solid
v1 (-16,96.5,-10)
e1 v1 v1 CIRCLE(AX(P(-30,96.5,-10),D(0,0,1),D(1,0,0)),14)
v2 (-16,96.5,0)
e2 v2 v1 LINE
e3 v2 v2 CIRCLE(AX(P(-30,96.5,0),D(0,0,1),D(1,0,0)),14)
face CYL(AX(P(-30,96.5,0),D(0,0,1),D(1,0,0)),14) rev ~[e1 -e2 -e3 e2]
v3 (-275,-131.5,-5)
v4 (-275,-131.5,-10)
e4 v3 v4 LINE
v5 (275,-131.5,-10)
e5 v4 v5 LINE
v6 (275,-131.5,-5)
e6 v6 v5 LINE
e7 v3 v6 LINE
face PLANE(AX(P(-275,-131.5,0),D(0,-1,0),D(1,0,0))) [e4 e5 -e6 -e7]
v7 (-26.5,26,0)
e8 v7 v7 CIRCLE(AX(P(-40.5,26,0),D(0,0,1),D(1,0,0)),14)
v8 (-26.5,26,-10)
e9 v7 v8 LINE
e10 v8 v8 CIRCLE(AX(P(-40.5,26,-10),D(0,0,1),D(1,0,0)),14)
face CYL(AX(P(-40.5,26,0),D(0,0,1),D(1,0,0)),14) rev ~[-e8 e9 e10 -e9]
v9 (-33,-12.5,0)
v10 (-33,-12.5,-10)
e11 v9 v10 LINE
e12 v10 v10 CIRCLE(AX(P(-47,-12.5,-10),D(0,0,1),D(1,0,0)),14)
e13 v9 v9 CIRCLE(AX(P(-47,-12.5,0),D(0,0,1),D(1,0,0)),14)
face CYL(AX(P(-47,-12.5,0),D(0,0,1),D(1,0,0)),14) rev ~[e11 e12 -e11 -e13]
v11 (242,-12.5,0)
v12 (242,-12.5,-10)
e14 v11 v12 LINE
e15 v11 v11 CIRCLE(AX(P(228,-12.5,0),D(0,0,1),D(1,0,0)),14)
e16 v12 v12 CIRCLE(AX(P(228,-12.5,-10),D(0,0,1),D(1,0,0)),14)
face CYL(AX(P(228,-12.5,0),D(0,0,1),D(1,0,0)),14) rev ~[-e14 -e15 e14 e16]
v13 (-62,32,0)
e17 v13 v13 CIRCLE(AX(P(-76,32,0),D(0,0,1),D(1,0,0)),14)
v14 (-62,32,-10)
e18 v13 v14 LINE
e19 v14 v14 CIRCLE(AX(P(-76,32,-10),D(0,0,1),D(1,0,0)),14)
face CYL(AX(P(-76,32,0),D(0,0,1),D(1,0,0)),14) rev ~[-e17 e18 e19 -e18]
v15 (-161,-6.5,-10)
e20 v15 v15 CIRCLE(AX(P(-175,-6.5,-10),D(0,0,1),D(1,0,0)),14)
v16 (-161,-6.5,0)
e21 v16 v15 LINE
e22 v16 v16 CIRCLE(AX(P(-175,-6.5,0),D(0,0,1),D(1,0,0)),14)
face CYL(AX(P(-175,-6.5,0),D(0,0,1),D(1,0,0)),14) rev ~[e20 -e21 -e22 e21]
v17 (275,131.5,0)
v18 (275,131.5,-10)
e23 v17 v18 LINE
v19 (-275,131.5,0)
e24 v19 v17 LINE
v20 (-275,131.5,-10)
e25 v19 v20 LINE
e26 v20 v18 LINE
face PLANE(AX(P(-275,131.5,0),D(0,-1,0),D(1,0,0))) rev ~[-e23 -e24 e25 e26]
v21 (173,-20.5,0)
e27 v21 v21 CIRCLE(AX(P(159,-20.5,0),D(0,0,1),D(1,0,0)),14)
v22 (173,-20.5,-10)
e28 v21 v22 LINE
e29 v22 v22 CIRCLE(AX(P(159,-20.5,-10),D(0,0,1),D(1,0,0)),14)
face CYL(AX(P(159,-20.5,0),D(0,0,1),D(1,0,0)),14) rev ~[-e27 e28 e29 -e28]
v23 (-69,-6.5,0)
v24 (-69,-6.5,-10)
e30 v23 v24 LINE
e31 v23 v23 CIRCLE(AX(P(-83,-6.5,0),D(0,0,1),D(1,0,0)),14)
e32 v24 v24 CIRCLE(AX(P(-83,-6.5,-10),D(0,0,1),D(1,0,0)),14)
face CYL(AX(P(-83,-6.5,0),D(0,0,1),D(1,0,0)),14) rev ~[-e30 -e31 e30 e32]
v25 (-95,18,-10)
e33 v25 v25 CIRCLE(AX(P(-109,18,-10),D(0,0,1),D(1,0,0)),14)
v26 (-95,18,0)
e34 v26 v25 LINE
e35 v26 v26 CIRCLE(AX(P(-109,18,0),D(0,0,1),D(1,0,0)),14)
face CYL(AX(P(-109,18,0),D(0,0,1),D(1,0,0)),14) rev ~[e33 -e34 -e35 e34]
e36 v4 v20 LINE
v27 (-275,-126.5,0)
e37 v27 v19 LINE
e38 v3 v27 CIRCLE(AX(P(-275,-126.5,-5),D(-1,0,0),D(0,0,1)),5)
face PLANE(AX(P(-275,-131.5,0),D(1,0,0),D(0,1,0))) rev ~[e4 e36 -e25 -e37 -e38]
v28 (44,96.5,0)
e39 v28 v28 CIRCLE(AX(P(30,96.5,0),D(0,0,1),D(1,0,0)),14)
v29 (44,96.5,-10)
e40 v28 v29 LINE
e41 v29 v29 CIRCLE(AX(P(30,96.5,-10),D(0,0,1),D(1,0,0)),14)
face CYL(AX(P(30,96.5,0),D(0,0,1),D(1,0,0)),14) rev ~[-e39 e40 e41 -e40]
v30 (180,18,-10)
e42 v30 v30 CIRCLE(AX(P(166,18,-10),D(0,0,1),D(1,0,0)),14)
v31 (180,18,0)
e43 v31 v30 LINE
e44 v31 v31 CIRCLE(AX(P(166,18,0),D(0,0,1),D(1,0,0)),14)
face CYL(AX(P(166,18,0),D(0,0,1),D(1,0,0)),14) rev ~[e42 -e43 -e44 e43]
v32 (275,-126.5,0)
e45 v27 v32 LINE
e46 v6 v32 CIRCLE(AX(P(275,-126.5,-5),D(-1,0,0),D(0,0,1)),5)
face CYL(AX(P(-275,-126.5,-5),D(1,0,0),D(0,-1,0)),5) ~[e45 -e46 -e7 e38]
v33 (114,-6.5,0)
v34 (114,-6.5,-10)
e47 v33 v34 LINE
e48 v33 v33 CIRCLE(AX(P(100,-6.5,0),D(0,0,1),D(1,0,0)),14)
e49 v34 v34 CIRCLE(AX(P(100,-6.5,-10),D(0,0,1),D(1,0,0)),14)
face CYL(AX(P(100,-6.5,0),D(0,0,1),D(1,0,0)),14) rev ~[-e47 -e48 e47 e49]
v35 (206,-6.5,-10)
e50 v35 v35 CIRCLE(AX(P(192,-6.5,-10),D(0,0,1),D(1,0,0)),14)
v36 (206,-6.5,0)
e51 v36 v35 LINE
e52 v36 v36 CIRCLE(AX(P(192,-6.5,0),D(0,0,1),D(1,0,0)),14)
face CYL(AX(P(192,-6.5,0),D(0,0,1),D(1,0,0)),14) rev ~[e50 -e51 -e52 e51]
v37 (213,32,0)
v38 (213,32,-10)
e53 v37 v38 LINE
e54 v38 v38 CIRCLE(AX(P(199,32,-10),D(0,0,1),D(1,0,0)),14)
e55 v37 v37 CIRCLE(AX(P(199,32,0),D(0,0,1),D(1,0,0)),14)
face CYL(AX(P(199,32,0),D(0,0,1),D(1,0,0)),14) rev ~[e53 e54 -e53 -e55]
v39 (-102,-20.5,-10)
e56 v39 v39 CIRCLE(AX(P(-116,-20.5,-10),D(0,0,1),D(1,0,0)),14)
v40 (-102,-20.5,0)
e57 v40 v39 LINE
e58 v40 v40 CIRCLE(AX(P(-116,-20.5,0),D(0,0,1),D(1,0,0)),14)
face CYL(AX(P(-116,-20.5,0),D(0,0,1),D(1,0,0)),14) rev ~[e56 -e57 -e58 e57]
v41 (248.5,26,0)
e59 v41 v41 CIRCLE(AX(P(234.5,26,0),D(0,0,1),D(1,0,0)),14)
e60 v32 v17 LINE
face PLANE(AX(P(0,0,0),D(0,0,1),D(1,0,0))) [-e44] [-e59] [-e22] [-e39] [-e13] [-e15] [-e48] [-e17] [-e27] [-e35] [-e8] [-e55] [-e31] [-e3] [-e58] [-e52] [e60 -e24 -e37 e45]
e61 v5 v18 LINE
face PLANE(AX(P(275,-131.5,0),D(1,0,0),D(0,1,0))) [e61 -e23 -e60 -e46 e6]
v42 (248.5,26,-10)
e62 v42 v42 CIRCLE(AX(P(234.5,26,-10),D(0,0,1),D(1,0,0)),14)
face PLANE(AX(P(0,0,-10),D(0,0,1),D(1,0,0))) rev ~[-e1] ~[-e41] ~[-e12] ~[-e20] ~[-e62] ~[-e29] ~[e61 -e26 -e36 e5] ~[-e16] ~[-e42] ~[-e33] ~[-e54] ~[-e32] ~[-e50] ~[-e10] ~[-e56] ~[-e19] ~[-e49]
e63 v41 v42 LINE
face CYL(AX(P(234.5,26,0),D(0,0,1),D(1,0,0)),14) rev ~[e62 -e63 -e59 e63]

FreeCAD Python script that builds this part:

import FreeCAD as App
import Part
import Sketcher


def edges_at(feature, points):
    """Names of the edges that pass closest to the given points."""
    edges = feature.Shape.Edges
    near = lambda p: min(range(len(edges)), key=lambda i: edges[i].distToShape(Part.Vertex(*p))[0])
    return sorted({f"Edge{near(p) + 1}" for p in points})


def add_polygon(sketch, points):
    """Adds a closed chain of lines whose ends are joined by coincident constraints."""
    first, n = sketch.GeometryCount, len(points)
    for a, b in zip(points, points[1:] + points[:1]):
        sketch.addGeometry(Part.LineSegment(App.Vector(*a, 0), App.Vector(*b, 0)), False)
    for i in range(n):
        sketch.addConstraint(Sketcher.Constraint("Coincident", first + i, 2, first + (i + 1) % n, 1))

doc = App.newDocument("Part")
body = doc.addObject("PartDesign::Body", "Body")

# Sketch on XY plane
sketch1 = body.newObject("Sketcher::SketchObject", "Sketch")
sketch1.AttachmentSupport = (doc.getObject("XY_Plane"), [""])
sketch1.MapMode = "FlatFace"
add_polygon(sketch1, [(-275, 131.5), (-275, -131.5), (275, -131.5), (275, 131.5)])  # lines 0-3
sketch1.addGeometry(Part.Circle(App.Vector(-116, -20.5, 0), App.Vector(0, 0, 1), 14), False)  # 4
sketch1.addGeometry(Part.Circle(App.Vector(-175, -6.5, 0), App.Vector(0, 0, 1), 14), False)  # 5
sketch1.addGeometry(Part.Circle(App.Vector(-83, -6.5, 0), App.Vector(0, 0, 1), 14), False)  # 6
sketch1.addGeometry(Part.Circle(App.Vector(-47, -12.5, 0), App.Vector(0, 0, 1), 14), False)  # 7
sketch1.addGeometry(Part.Circle(App.Vector(-109, 18, 0), App.Vector(0, 0, 1), 14), False)  # 8
sketch1.addGeometry(Part.Circle(App.Vector(-40.5, 26, 0), App.Vector(0, 0, 1), 14), False)  # 9
sketch1.addGeometry(Part.Circle(App.Vector(-76, 32, 0), App.Vector(0, 0, 1), 14), False)  # 10
sketch1.addGeometry(Part.Circle(App.Vector(100, -6.5, 0), App.Vector(0, 0, 1), 14), False)  # 11
sketch1.addGeometry(Part.Circle(App.Vector(159, -20.5, 0), App.Vector(0, 0, 1), 14), False)  # 12
sketch1.addGeometry(Part.Circle(App.Vector(192, -6.5, 0), App.Vector(0, 0, 1), 14), False)  # 13
sketch1.addGeometry(Part.Circle(App.Vector(228, -12.5, 0), App.Vector(0, 0, 1), 14), False)  # 14
sketch1.addGeometry(Part.Circle(App.Vector(166, 18, 0), App.Vector(0, 0, 1), 14), False)  # 15
sketch1.addGeometry(Part.Circle(App.Vector(234.5, 26, 0), App.Vector(0, 0, 1), 14), False)  # 16
sketch1.addGeometry(Part.Circle(App.Vector(199, 32, 0), App.Vector(0, 0, 1), 14), False)  # 17
sketch1.addGeometry(Part.Circle(App.Vector(-30, 96.5, 0), App.Vector(0, 0, 1), 14), False)  # 18
sketch1.addGeometry(Part.Circle(App.Vector(30, 96.5, 0), App.Vector(0, 0, 1), 14), False)  # 19
sketch1.addConstraint([
    Sketcher.Constraint("Vertical", 0),
    Sketcher.Constraint("Horizontal", 1),
    Sketcher.Constraint("Vertical", 2),
    Sketcher.Constraint("Horizontal", 3),
    Sketcher.Constraint("Equal", 4, 5),
    Sketcher.Constraint("Equal", 5, 6),
    Sketcher.Constraint("Equal", 6, 7),
    Sketcher.Constraint("Equal", 7, 8),
    Sketcher.Constraint("Equal", 8, 9),
    Sketcher.Constraint("Equal", 9, 10),
    Sketcher.Constraint("Equal", 10, 11),
    Sketcher.Constraint("Equal", 11, 12),
    Sketcher.Constraint("Equal", 12, 13),
    Sketcher.Constraint("Equal", 13, 14),
    Sketcher.Constraint("Equal", 14, 15),
    Sketcher.Constraint("Equal", 15, 16),
    Sketcher.Constraint("Equal", 16, 17),
    Sketcher.Constraint("Equal", 17, 18),
    Sketcher.Constraint("Equal", 18, 19),
    Sketcher.Constraint("Symmetric", 0, 2, 2, 2, -1, 1),
    Sketcher.Constraint("Symmetric", 18, 3, 19, 3, -2),
    Sketcher.Constraint("Horizontal", 5, 3, 6, 3),
    Sketcher.Constraint("Horizontal", 6, 3, 11, 3),
    Sketcher.Constraint("Horizontal", 4, 3, 12, 3),
    Sketcher.Constraint("Horizontal", 11, 3, 13, 3),
    Sketcher.Constraint("Horizontal", 7, 3, 14, 3),
    Sketcher.Constraint("Horizontal", 8, 3, 15, 3),
    Sketcher.Constraint("Horizontal", 9, 3, 16, 3),
    Sketcher.Constraint("Horizontal", 10, 3, 17, 3),
    Sketcher.Constraint("Diameter", 4, 28.0),
    Sketcher.Constraint("DistanceX", 1, 1, 1, 2, 550.0),
    Sketcher.Constraint("DistanceY", 0, 2, 0, 1, 263.0),
    Sketcher.Constraint("DistanceX", 4, 3, -1, 1, 116.0),
    Sketcher.Constraint("DistanceX", 5, 3, -1, 1, 175.0),
    Sketcher.Constraint("DistanceX", 6, 3, -1, 1, 83.0),
    Sketcher.Constraint("DistanceX", 7, 3, -1, 1, 47.0),
    Sketcher.Constraint("DistanceX", 8, 3, -1, 1, 109.0),
    Sketcher.Constraint("DistanceY", -1, 1, 8, 3, 18.0),
    Sketcher.Constraint("DistanceY", -1, 1, 9, 3, 26.0),
    Sketcher.Constraint("DistanceX", 10, 3, -1, 1, 76.0),
    Sketcher.Constraint("DistanceY", -1, 1, 10, 3, 32.0),
    Sketcher.Constraint("DistanceX", -1, 1, 11, 3, 100.0),
    Sketcher.Constraint("DistanceX", -1, 1, 12, 3, 159.0),
    Sketcher.Constraint("DistanceX", -1, 1, 13, 3, 192.0),
    Sketcher.Constraint("DistanceX", -1, 1, 14, 3, 228.0),
    Sketcher.Constraint("DistanceX", -1, 1, 15, 3, 166.0),
    Sketcher.Constraint("DistanceX", -1, 1, 17, 3, 199.0),
    Sketcher.Constraint("DistanceX", 18, 3, -1, 1, 30.0),
    Sketcher.Constraint("DistanceY", 4, 3, 5, 3, 14.0),
    Sketcher.Constraint("DistanceY", 7, 3, 6, 3, 6.0),
    Sketcher.Constraint("DistanceY", 7, 3, 18, 3, 109.0),
    Sketcher.Constraint("DistanceY", 0, 2, 5, 3, 125.0),
    Sketcher.Constraint("DistanceX", 9, 3, -1, 1, 40.5),
    Sketcher.Constraint("DistanceX", -1, 1, 16, 3, 234.5),
])
pad1 = body.newObject("PartDesign::Pad", "Pad")
pad1.Profile = sketch1
pad1.Length = 10
pad1.Reversed = True
doc.recompute()

fillet = body.newObject("PartDesign::Fillet", "Fillet")
fillet.Base = (pad1, edges_at(pad1, [(0, -131.5, 0)]))
fillet.Radius = 5

doc.recompute()
